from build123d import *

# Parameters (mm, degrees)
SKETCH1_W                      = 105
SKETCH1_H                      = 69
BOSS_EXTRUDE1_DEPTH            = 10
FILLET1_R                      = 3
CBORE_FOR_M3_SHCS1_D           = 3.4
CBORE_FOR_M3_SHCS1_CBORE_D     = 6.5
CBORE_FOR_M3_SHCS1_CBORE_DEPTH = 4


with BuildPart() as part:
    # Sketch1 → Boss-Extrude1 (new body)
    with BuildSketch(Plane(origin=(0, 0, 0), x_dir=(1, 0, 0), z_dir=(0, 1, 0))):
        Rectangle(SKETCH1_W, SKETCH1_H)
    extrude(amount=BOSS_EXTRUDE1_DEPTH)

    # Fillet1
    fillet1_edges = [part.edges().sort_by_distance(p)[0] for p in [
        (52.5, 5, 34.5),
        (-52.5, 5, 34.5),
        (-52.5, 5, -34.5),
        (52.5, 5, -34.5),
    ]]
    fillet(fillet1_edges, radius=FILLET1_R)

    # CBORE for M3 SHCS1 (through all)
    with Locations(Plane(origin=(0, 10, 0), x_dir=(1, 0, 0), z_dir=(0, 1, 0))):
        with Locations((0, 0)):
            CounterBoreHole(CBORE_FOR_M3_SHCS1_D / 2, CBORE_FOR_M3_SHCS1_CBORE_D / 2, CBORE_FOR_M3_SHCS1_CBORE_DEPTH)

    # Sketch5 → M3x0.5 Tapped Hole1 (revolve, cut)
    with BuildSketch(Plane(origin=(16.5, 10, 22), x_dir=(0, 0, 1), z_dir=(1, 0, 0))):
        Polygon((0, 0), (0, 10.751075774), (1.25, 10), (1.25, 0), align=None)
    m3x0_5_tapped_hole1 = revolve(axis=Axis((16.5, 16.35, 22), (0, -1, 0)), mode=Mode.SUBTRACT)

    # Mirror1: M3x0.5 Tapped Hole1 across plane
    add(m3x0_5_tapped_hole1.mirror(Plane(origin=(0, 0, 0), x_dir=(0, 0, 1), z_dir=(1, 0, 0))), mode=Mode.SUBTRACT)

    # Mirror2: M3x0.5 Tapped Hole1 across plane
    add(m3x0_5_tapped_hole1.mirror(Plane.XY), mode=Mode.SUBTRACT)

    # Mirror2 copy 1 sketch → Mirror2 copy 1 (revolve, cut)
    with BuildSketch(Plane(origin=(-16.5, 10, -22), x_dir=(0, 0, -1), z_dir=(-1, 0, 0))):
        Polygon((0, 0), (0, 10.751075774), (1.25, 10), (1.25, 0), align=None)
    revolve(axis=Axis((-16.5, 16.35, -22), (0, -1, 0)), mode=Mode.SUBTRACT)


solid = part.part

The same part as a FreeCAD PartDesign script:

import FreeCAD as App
import Part
import Sketcher
from FreeCAD import Vector
Q = App.Units.Quantity


def edges_at(feature, points):
    """Names of the edges that pass closest to the given points."""
    edges = feature.Shape.Edges
    near = lambda p: min(range(len(edges)), key=lambda i: edges[i].distToShape(Part.Vertex(*p))[0])
    return sorted({f"Edge{near(p) + 1}" for p in points})

doc = App.newDocument("Part")
body = doc.addObject("PartDesign::Body", "Body")

# Sketch on XZ plane
sketch1 = body.newObject("Sketcher::SketchObject", "Sketch")
sketch1.AttachmentSupport = (doc.getObject("XZ_Plane"), [""])
sketch1.MapMode = "FlatFace"
sketch1.addGeometry([
    Part.LineSegment(Vector(-52, -34, 0), Vector(-52, 34, 0)),
    Part.LineSegment(Vector(-52, 34, 0), Vector(52, 34, 0)),
    Part.LineSegment(Vector(52, 34, 0), Vector(52, -34, 0)),
    Part.LineSegment(Vector(52, -34, 0), Vector(-52, -34, 0)),
], False)
sketch1.addConstraint([
    Sketcher.Constraint("Coincident", 0, 2, 1, 1),
    Sketcher.Constraint("Coincident", 1, 2, 2, 1),
    Sketcher.Constraint("Coincident", 2, 2, 3, 1),
    Sketcher.Constraint("Coincident", 3, 2, 0, 1),
    Sketcher.Constraint("Vertical", 0),
    Sketcher.Constraint("Horizontal", 1),
    Sketcher.Constraint("Vertical", 2),
    Sketcher.Constraint("Horizontal", 3),
    Sketcher.Constraint("Symmetric", 0, 2, 2, 2, -1, 1),
    Sketcher.Constraint("DistanceX", 1, 1, 1, 2, 105.0),
    Sketcher.Constraint("DistanceY", 0, 1, 0, 2, 69.0),
])
pad1 = body.newObject("PartDesign::Pad", "Pad")
pad1.Profile = sketch1
pad1.Length = 10
pad1.Reversed = True
doc.recompute()

fillet = body.newObject("PartDesign::Fillet", "Fillet")
fillet.Base = (pad1, edges_at(pad1, [
    (52.5, 5, 34.5),
    (-52.5, 5, 34.5),
    (-52.5, 5, -34.5),
    (52.5, 5, -34.5),
]))
fillet.Radius = 3

# Sketch on XZ plane
sketch2 = body.newObject("Sketcher::SketchObject", "Sketch001")
sketch2.AttachmentSupport = (doc.getObject("XZ_Plane"), [""])
sketch2.MapMode = "FlatFace"
sketch2.AttachmentOffset = App.Placement(Vector(0, 0, -10), App.Rotation())
sketch2.addGeometry(Part.Circle(Vector(0, 0, 0), Vector(0, 0, 1), 1.7), False)
sketch2.addConstraint([
    Sketcher.Constraint("Coincident", 0, 3, -1, 1),
    Sketcher.Constraint("Diameter", 0, 3.4),
])
doc.recompute()
hole = body.newObject("PartDesign::Hole", "Hole")
hole.Profile = sketch2
hole.ThreadType = "None"
hole.Diameter = 3.4
hole.DepthType = "ThroughAll"
hole.HoleCutType = "Counterbore"
hole.HoleCutDiameter = 6.5
hole.HoleCutDepth = 4
hole.Reversed = True

# Sketch on YZ plane
sketch3 = body.newObject("Sketcher::SketchObject", "Sketch002")
sketch3.AttachmentSupport = (doc.getObject("YZ_Plane"), [""])
sketch3.MapMode = "FlatFace"
sketch3.AttachmentOffset = App.Placement(Vector(0, 0, 16.5), App.Rotation())
sketch3.addGeometry([
    Part.LineSegment(Vector(-0.8, 22, 0), Vector(10, 22, 0)),
    Part.LineSegment(Vector(10, 22, 0), Vector(10, 23.2, 0)),
    Part.LineSegment(Vector(10, 23.2, 0), Vector(0, 23.2, 0)),
    Part.LineSegment(Vector(0, 23.2, 0), Vector(-0.8, 22, 0)),
], False)
sketch3.addGeometry(Part.LineSegment(Vector(10, 22, 0), Vector(-0.8, 22, 0)), True)  # axis
sketch3.addConstraint([
    Sketcher.Constraint("Coincident", 0, 2, 1, 1),
    Sketcher.Constraint("Coincident", 1, 2, 2, 1),
    Sketcher.Constraint("Coincident", 2, 2, 3, 1),
    Sketcher.Constraint("Coincident", 3, 2, 0, 1),
    Sketcher.Constraint("Horizontal", 0),
    Sketcher.Constraint("Vertical", 1),
    Sketcher.Constraint("Horizontal", 2),
    Sketcher.Constraint("Horizontal", 4),
    Sketcher.Constraint("Coincident", 4, 1, 0, 2),
    Sketcher.Constraint("PointOnObject", 2, 2, -2),
    Sketcher.Constraint("Equal", 0, 4),
    Sketcher.Constraint("DistanceX", 2, 2, 2, 1, 10.0),
    Sketcher.Constraint("Angle", 3, Q("-121 deg")),
    Sketcher.Constraint("DistanceY", -1, 1, 0, 2, 22.0),
    Sketcher.Constraint("DistanceY", 1, 1, 1, 2, 1.25),
])
groove = body.newObject("PartDesign::Groove", "Groove")
groove.Profile = sketch3
groove.ReferenceAxis = (sketch3, ["Axis0"])
groove.Angle = 360
doc.recompute()

mirrored = body.newObject("PartDesign::Mirrored", "Mirrored")
mirrored.Originals = [groove]
mirrored.MirrorPlane = (doc.getObject("YZ_Plane"), [""])
body.Tip = mirrored
doc.recompute()

mirrored2 = body.newObject("PartDesign::Mirrored", "Mirrored001")
mirrored2.Originals = [groove]
mirrored2.MirrorPlane = (doc.getObject("XY_Plane"), [""])
body.Tip = mirrored2

# Sketch on YZ plane
sketch4 = body.newObject("Sketcher::SketchObject", "Sketch003")
sketch4.AttachmentSupport = (doc.getObject("YZ_Plane"), [""])
sketch4.MapMode = "FlatFace"
sketch4.AttachmentOffset = App.Placement(Vector(0, 0, -16.5), App.Rotation())
sketch4.addGeometry([
    Part.LineSegment(Vector(-0.8, -22, 0), Vector(10, -22, 0)),
    Part.LineSegment(Vector(10, -22, 0), Vector(10, -23.2, 0)),
    Part.LineSegment(Vector(10, -23.2, 0), Vector(0, -23.2, 0)),
    Part.LineSegment(Vector(0, -23.2, 0), Vector(-0.8, -22, 0)),
], False)
sketch4.addGeometry(Part.LineSegment(Vector(10, -22, 0), Vector(-0.8, -22, 0)), True)  # axis
sketch4.addConstraint([
    Sketcher.Constraint("Coincident", 0, 2, 1, 1),
    Sketcher.Constraint("Coincident", 1, 2, 2, 1),
    Sketcher.Constraint("Coincident", 2, 2, 3, 1),
    Sketcher.Constraint("Coincident", 3, 2, 0, 1),
    Sketcher.Constraint("Horizontal", 0),
    Sketcher.Constraint("Vertical", 1),
    Sketcher.Constraint("Horizontal", 2),
    Sketcher.Constraint("Horizontal", 4),
    Sketcher.Constraint("Coincident", 4, 1, 0, 2),
    Sketcher.Constraint("PointOnObject", 2, 2, -2),
    Sketcher.Constraint("Equal", 0, 4),
    Sketcher.Constraint("DistanceX", 2, 2, 2, 1, 10.0),
    Sketcher.Constraint("Angle", 3, Q("121 deg")),
    Sketcher.Constraint("DistanceY", 0, 2, -1, 1, 22.0),
    Sketcher.Constraint("DistanceY", 1, 2, 1, 1, 1.25),
])
groove2 = body.newObject("PartDesign::Groove", "Groove001")
groove2.Profile = sketch4
groove2.ReferenceAxis = (sketch4, ["Axis0"])
groove2.Angle = 360

doc.recompute()
